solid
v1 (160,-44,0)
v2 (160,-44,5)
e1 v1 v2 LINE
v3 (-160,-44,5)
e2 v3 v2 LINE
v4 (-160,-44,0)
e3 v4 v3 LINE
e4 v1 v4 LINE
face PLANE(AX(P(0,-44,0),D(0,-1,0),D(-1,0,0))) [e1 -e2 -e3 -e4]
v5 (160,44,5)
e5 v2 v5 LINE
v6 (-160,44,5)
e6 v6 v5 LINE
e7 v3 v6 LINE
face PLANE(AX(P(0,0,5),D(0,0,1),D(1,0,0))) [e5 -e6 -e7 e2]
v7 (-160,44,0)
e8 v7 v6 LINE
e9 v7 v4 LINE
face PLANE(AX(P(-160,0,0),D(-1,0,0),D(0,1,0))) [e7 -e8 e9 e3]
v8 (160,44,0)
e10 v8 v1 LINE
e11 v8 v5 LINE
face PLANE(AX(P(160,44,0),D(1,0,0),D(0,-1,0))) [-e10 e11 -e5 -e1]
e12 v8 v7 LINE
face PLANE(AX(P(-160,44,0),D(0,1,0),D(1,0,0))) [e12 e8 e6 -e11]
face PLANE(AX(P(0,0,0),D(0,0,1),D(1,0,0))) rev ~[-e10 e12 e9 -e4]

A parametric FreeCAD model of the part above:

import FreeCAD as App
import Part
import Sketcher

V = App.Vector
Q = App.Units.Quantity


def add_polygon(sketch, points):
    """Adds a closed chain of lines whose ends are joined by coincident constraints."""
    first, n = sketch.GeometryCount, len(points)
    for a, b in zip(points, points[1:] + points[:1]):
        sketch.addGeometry(Part.LineSegment(App.Vector(*a, 0), App.Vector(*b, 0)), False)
    for i in range(n):
        sketch.addConstraint(Sketcher.Constraint("Coincident", first + i, 2, first + (i + 1) % n, 1))

doc = App.newDocument("Part")
body = doc.addObject("PartDesign::Body", "Body")

# Sketch on XY plane
sketch1 = body.newObject("Sketcher::SketchObject", "Sketch")
sketch1.AttachmentSupport = (doc.getObject("XY_Plane"), [""])
sketch1.MapMode = "FlatFace"
add_polygon(sketch1, [(-160, 44), (-160, -44), (160, -44), (160, 44)])  # lines 0-3
sketch1.addConstraint(Sketcher.Constraint("Vertical", 0))
sketch1.addConstraint(Sketcher.Constraint("Horizontal", 1))
sketch1.addConstraint(Sketcher.Constraint("Vertical", 2))
sketch1.addConstraint(Sketcher.Constraint("Horizontal", 3))
sketch1.addConstraint(Sketcher.Constraint("Symmetric", 0, 2, 2, 2, -1, 1))
sketch1.addConstraint(Sketcher.Constraint("DistanceX", 1, 1, 1, 2, Q("320 mm")))
sketch1.addConstraint(Sketcher.Constraint("DistanceY", 0, 2, 0, 1, Q("88 mm")))
pad1 = body.newObject("PartDesign::Pad", "Pad")
pad1.Profile = sketch1
pad1.Length = 5

doc.recompute()
